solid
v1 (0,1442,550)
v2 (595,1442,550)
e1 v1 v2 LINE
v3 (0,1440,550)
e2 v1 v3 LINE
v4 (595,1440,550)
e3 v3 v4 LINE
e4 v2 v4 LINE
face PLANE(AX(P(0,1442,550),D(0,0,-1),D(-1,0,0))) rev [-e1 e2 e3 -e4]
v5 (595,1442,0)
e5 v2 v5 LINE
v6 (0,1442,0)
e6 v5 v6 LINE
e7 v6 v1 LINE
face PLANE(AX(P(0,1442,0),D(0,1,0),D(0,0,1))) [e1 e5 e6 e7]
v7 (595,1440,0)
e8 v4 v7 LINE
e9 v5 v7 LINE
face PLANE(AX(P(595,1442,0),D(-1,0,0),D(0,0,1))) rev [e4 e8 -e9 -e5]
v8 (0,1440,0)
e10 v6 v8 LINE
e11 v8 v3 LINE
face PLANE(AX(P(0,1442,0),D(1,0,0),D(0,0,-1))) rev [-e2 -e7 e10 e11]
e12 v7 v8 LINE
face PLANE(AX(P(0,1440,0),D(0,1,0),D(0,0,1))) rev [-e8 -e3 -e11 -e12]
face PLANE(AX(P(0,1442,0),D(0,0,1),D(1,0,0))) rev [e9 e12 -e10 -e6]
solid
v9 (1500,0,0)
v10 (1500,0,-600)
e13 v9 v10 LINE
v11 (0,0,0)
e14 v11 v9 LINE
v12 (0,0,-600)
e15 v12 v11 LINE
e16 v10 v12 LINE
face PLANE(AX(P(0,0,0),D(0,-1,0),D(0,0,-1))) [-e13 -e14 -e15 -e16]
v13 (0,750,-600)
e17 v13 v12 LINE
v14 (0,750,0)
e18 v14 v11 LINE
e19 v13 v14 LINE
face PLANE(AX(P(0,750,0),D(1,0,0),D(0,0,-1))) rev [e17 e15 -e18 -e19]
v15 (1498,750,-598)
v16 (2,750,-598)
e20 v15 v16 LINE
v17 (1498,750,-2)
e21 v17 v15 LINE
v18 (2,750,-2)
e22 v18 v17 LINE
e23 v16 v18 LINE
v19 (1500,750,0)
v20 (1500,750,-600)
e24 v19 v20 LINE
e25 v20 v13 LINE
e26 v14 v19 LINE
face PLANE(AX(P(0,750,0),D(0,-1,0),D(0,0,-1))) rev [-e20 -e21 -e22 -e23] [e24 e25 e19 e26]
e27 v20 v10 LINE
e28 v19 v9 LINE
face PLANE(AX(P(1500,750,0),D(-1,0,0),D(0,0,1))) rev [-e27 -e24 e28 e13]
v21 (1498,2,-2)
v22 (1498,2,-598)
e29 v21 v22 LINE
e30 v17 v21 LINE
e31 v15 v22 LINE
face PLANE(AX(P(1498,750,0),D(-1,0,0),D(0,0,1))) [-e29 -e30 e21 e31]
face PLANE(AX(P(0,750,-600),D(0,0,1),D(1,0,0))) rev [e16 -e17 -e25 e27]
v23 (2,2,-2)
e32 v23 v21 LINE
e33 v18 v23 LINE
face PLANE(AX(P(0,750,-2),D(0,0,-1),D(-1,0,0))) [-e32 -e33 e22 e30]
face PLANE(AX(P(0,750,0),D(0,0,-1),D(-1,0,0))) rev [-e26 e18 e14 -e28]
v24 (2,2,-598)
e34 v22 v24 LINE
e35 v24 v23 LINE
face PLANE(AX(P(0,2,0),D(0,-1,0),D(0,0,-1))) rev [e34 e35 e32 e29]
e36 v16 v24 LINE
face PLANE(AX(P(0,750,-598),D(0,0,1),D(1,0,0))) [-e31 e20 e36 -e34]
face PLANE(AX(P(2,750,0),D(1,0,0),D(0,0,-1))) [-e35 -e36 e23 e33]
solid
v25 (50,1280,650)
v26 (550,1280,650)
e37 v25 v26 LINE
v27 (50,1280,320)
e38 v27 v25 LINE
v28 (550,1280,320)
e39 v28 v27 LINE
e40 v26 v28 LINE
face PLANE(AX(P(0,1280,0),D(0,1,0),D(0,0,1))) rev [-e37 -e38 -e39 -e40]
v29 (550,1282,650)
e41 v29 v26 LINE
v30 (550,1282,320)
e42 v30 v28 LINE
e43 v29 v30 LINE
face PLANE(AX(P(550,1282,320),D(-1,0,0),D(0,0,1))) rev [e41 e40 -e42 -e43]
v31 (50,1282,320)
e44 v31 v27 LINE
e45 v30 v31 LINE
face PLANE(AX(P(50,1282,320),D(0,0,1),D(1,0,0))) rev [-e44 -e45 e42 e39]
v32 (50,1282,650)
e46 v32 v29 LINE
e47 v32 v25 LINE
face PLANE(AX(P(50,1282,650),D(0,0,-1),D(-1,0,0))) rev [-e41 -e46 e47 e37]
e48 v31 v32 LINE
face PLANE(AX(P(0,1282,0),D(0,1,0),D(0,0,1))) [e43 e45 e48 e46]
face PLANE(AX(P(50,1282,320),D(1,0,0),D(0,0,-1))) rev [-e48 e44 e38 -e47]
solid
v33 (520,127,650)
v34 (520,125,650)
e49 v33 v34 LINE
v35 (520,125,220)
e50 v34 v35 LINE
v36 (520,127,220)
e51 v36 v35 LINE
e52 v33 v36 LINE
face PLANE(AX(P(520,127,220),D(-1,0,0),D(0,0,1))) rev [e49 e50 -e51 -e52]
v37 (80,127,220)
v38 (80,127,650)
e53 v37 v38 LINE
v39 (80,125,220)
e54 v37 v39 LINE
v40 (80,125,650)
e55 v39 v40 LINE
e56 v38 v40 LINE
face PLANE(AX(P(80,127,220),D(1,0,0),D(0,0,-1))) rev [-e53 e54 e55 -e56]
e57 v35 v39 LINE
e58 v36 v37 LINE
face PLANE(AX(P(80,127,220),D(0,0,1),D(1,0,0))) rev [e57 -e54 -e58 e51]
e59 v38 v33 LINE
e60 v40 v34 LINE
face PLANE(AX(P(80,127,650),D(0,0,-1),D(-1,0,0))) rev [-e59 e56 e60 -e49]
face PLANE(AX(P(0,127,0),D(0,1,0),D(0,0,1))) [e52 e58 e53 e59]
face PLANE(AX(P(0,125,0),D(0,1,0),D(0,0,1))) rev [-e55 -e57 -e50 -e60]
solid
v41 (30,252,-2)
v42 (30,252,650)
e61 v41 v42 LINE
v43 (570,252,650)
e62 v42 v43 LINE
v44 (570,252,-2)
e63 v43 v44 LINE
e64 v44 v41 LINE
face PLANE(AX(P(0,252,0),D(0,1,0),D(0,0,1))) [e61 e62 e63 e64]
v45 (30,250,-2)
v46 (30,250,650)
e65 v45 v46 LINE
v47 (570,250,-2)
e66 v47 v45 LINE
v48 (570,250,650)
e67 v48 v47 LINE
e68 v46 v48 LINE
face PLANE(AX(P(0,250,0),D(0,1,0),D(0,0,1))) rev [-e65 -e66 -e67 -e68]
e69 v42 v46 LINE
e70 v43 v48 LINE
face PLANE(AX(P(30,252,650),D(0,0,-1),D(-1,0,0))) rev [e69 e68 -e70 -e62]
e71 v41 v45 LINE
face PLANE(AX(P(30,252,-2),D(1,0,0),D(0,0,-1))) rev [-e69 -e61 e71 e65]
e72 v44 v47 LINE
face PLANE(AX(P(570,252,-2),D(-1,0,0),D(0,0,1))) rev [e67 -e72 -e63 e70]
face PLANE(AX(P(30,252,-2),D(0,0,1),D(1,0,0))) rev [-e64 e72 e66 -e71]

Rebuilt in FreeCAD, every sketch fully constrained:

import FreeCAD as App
import Part
import Sketcher
from FreeCAD import Vector
Q = App.Units.Quantity


def faces_at(feature, points):
    """Names of the faces that lie closest to the given points."""
    faces = feature.Shape.Faces
    near = lambda p: min(range(len(faces)), key=lambda i: faces[i].distToShape(Part.Vertex(*p))[0])
    return sorted({f"Face{near(p) + 1}" for p in points})

doc = App.newDocument("Part")
params = doc.addObject("Spreadsheet::Sheet", "Params")
for row, (alias, value) in enumerate([
    ("sketch1_width", "1500 mm"),
    ("sketch1_height", "600 mm"),
    ("pad1_length", "750 mm"),
    ("thickness_wall", "2 mm"),
    ("sketch2_width", "440 mm"),
    ("sketch2_height", "430 mm"),
    ("pad2_length", "2 mm"),
    ("sketch3_width", "500 mm"),
    ("sketch3_height", "330 mm"),
    ("pad3_length", "2 mm"),
    ("sketch4_width", "595 mm"),
    ("sketch4_height", "550 mm"),
    ("pad4_length", "2 mm"),
    ("sketch5_width", "540 mm"),
    ("sketch5_height", "652 mm"),
    ("pad5_length", "2 mm"),
], start=1):
    params.set(f"A{row}", alias)
    params.set(f"B{row}", "=" + value)
    params.setAlias(f"B{row}", alias)

body = doc.addObject("PartDesign::Body", "Body")

# Sketch on XZ plane
sketch1 = body.newObject("Sketcher::SketchObject", "Sketch")
sketch1.AttachmentSupport = (doc.getObject("XZ_Plane"), [""])
sketch1.MapMode = "FlatFace"
sketch1.addGeometry(Part.LineSegment(Vector(0, -600, 0), Vector(0, 0, 0)), False)
sketch1.addGeometry(Part.LineSegment(Vector(0, 0, 0), Vector(1500, 0, 0)), False)
sketch1.addGeometry(Part.LineSegment(Vector(1500, 0, 0), Vector(1500, -600, 0)), False)
sketch1.addGeometry(Part.LineSegment(Vector(1500, -600, 0), Vector(0, -600, 0)), False)
sketch1.addConstraint(Sketcher.Constraint("Coincident", 0, 2, 1, 1))
sketch1.addConstraint(Sketcher.Constraint("Coincident", 1, 2, 2, 1))
sketch1.addConstraint(Sketcher.Constraint("Coincident", 2, 2, 3, 1))
sketch1.addConstraint(Sketcher.Constraint("Coincident", 3, 2, 0, 1))
sketch1.addConstraint(Sketcher.Constraint("Vertical", 0))
sketch1.addConstraint(Sketcher.Constraint("Horizontal", 1))
sketch1.addConstraint(Sketcher.Constraint("Vertical", 2))
sketch1.addConstraint(Sketcher.Constraint("Horizontal", 3))
sketch1.addConstraint(Sketcher.Constraint("Coincident", 0, 2, -1, 1))
sketch1.addConstraint(Sketcher.Constraint("DistanceX", 1, 1, 1, 2, Q("1500 mm")))
sketch1.addConstraint(Sketcher.Constraint("DistanceY", 0, 1, 0, 2, Q("600 mm")))
sketch1.setExpression("Constraints[9]", "Params.sketch1_width")
sketch1.setExpression("Constraints[10]", "Params.sketch1_height")
pad1 = body.newObject("PartDesign::Pad", "Pad")
pad1.Profile = sketch1
pad1.setExpression("Length", "Params.pad1_length")
pad1.Reversed = True
doc.recompute()

thickness = body.newObject("PartDesign::Thickness", "Thickness")
thickness.Base = (pad1, faces_at(pad1, [(750, 750, -300)]))
thickness.setExpression("Value", "Params.thickness_wall")
thickness.Reversed = True
thickness.Join = "Intersection"
body2 = doc.addObject("PartDesign::Body", "Body001")

# Sketch on XZ plane
sketch2 = body2.newObject("Sketcher::SketchObject", "Sketch001")
sketch2.AttachmentSupport = (doc.getObject("XZ_Plane001"), [""])
sketch2.MapMode = "FlatFace"
sketch2.AttachmentOffset = App.Placement(Vector(0, 0, -125), App.Rotation())
sketch2.addGeometry(Part.LineSegment(Vector(80, 220, 0), Vector(80, 650, 0)), False)
sketch2.addGeometry(Part.LineSegment(Vector(80, 650, 0), Vector(520, 650, 0)), False)
sketch2.addGeometry(Part.LineSegment(Vector(520, 650, 0), Vector(520, 220, 0)), False)
sketch2.addGeometry(Part.LineSegment(Vector(520, 220, 0), Vector(80, 220, 0)), False)
sketch2.addConstraint(Sketcher.Constraint("Coincident", 0, 2, 1, 1))
sketch2.addConstraint(Sketcher.Constraint("Coincident", 1, 2, 2, 1))
sketch2.addConstraint(Sketcher.Constraint("Coincident", 2, 2, 3, 1))
sketch2.addConstraint(Sketcher.Constraint("Coincident", 3, 2, 0, 1))
sketch2.addConstraint(Sketcher.Constraint("Vertical", 0))
sketch2.addConstraint(Sketcher.Constraint("Horizontal", 1))
sketch2.addConstraint(Sketcher.Constraint("Vertical", 2))
sketch2.addConstraint(Sketcher.Constraint("Horizontal", 3))
sketch2.addConstraint(Sketcher.Constraint("DistanceX", 1, 1, 1, 2, Q("440 mm")))
sketch2.addConstraint(Sketcher.Constraint("DistanceY", 0, 1, 0, 2, Q("430 mm")))
sketch2.addConstraint(Sketcher.Constraint("DistanceX", -1, 1, 0, 2, Q("80 mm")))
sketch2.addConstraint(Sketcher.Constraint("DistanceY", -1, 1, 0, 2, Q("650 mm")))
sketch2.setExpression("Constraints[8]", "Params.sketch2_width")
sketch2.setExpression("Constraints[9]", "Params.sketch2_height")
pad2 = body2.newObject("PartDesign::Pad", "Pad001")
pad2.Profile = sketch2
pad2.setExpression("Length", "Params.pad2_length")
pad2.Reversed = True
body3 = doc.addObject("PartDesign::Body", "Body002")

# Sketch on XZ plane
sketch3 = body3.newObject("Sketcher::SketchObject", "Sketch002")
sketch3.AttachmentSupport = (doc.getObject("XZ_Plane002"), [""])
sketch3.MapMode = "FlatFace"
sketch3.AttachmentOffset = App.Placement(Vector(0, 0, -1280), App.Rotation())
sketch3.addGeometry(Part.LineSegment(Vector(50, 320, 0), Vector(50, 650, 0)), False)
sketch3.addGeometry(Part.LineSegment(Vector(50, 650, 0), Vector(550, 650, 0)), False)
sketch3.addGeometry(Part.LineSegment(Vector(550, 650, 0), Vector(550, 320, 0)), False)
sketch3.addGeometry(Part.LineSegment(Vector(550, 320, 0), Vector(50, 320, 0)), False)
sketch3.addConstraint(Sketcher.Constraint("Coincident", 0, 2, 1, 1))
sketch3.addConstraint(Sketcher.Constraint("Coincident", 1, 2, 2, 1))
sketch3.addConstraint(Sketcher.Constraint("Coincident", 2, 2, 3, 1))
sketch3.addConstraint(Sketcher.Constraint("Coincident", 3, 2, 0, 1))
sketch3.addConstraint(Sketcher.Constraint("Vertical", 0))
sketch3.addConstraint(Sketcher.Constraint("Horizontal", 1))
sketch3.addConstraint(Sketcher.Constraint("Vertical", 2))
sketch3.addConstraint(Sketcher.Constraint("Horizontal", 3))
sketch3.addConstraint(Sketcher.Constraint("DistanceX", 1, 1, 1, 2, Q("500 mm")))
sketch3.addConstraint(Sketcher.Constraint("DistanceY", 0, 1, 0, 2, Q("330 mm")))
sketch3.addConstraint(Sketcher.Constraint("DistanceX", -1, 1, 0, 2, Q("50 mm")))
sketch3.addConstraint(Sketcher.Constraint("DistanceY", -1, 1, 0, 2, Q("650 mm")))
sketch3.setExpression("Constraints[8]", "Params.sketch3_width")
sketch3.setExpression("Constraints[9]", "Params.sketch3_height")
pad3 = body3.newObject("PartDesign::Pad", "Pad002")
pad3.Profile = sketch3
pad3.setExpression("Length", "Params.pad3_length")
pad3.Reversed = True
body4 = doc.addObject("PartDesign::Body", "Body003")

# Sketch on XZ plane
sketch4 = body4.newObject("Sketcher::SketchObject", "Sketch003")
sketch4.AttachmentSupport = (doc.getObject("XZ_Plane003"), [""])
sketch4.MapMode = "FlatFace"
sketch4.AttachmentOffset = App.Placement(Vector(0, 0, -1440), App.Rotation())
sketch4.addGeometry(Part.LineSegment(Vector(0, 0, 0), Vector(0, 550, 0)), False)
sketch4.addGeometry(Part.LineSegment(Vector(0, 550, 0), Vector(595, 550, 0)), False)
sketch4.addGeometry(Part.LineSegment(Vector(595, 550, 0), Vector(595, 0, 0)), False)
sketch4.addGeometry(Part.LineSegment(Vector(595, 0, 0), Vector(0, 0, 0)), False)
sketch4.addConstraint(Sketcher.Constraint("Coincident", 0, 2, 1, 1))
sketch4.addConstraint(Sketcher.Constraint("Coincident", 1, 2, 2, 1))
sketch4.addConstraint(Sketcher.Constraint("Coincident", 2, 2, 3, 1))
sketch4.addConstraint(Sketcher.Constraint("Coincident", 3, 2, 0, 1))
sketch4.addConstraint(Sketcher.Constraint("Vertical", 0))
sketch4.addConstraint(Sketcher.Constraint("Horizontal", 1))
sketch4.addConstraint(Sketcher.Constraint("Vertical", 2))
sketch4.addConstraint(Sketcher.Constraint("Horizontal", 3))
sketch4.addConstraint(Sketcher.Constraint("Coincident", 3, 2, -1, 1))
sketch4.addConstraint(Sketcher.Constraint("DistanceX", 1, 1, 1, 2, Q("595 mm")))
sketch4.addConstraint(Sketcher.Constraint("DistanceY", 0, 1, 0, 2, Q("550 mm")))
sketch4.setExpression("Constraints[9]", "Params.sketch4_width")
sketch4.setExpression("Constraints[10]", "Params.sketch4_height")
pad4 = body4.newObject("PartDesign::Pad", "Pad003")
pad4.Profile = sketch4
pad4.setExpression("Length", "Params.pad4_length")
pad4.Reversed = True
body5 = doc.addObject("PartDesign::Body", "Body004")

# Sketch on XZ plane
sketch5 = body5.newObject("Sketcher::SketchObject", "Sketch004")
sketch5.AttachmentSupport = (doc.getObject("XZ_Plane004"), [""])
sketch5.MapMode = "FlatFace"
sketch5.AttachmentOffset = App.Placement(Vector(0, 0, -250), App.Rotation())
sketch5.addGeometry(Part.LineSegment(Vector(30, -2, 0), Vector(30, 650, 0)), False)
sketch5.addGeometry(Part.LineSegment(Vector(30, 650, 0), Vector(570, 650, 0)), False)
sketch5.addGeometry(Part.LineSegment(Vector(570, 650, 0), Vector(570, -2, 0)), False)
sketch5.addGeometry(Part.LineSegment(Vector(570, -2, 0), Vector(30, -2, 0)), False)
sketch5.addConstraint(Sketcher.Constraint("Coincident", 0, 2, 1, 1))
sketch5.addConstraint(Sketcher.Constraint("Coincident", 1, 2, 2, 1))
sketch5.addConstraint(Sketcher.Constraint("Coincident", 2, 2, 3, 1))
sketch5.addConstraint(Sketcher.Constraint("Coincident", 3, 2, 0, 1))
sketch5.addConstraint(Sketcher.Constraint("Vertical", 0))
sketch5.addConstraint(Sketcher.Constraint("Horizontal", 1))
sketch5.addConstraint(Sketcher.Constraint("Vertical", 2))
sketch5.addConstraint(Sketcher.Constraint("Horizontal", 3))
sketch5.addConstraint(Sketcher.Constraint("DistanceX", 1, 1, 1, 2, Q("540 mm")))
sketch5.addConstraint(Sketcher.Constraint("DistanceY", 0, 1, 0, 2, Q("652 mm")))
sketch5.addConstraint(Sketcher.Constraint("DistanceX", -1, 1, 0, 2, Q("30 mm")))
sketch5.addConstraint(Sketcher.Constraint("DistanceY", -1, 1, 0, 2, Q("650 mm")))
sketch5.setExpression("Constraints[8]", "Params.sketch5_width")
sketch5.setExpression("Constraints[9]", "Params.sketch5_height")
pad5 = body5.newObject("PartDesign::Pad", "Pad004")
pad5.Profile = sketch5
pad5.setExpression("Length", "Params.pad5_length")
pad5.Reversed = True

doc.recompute()
